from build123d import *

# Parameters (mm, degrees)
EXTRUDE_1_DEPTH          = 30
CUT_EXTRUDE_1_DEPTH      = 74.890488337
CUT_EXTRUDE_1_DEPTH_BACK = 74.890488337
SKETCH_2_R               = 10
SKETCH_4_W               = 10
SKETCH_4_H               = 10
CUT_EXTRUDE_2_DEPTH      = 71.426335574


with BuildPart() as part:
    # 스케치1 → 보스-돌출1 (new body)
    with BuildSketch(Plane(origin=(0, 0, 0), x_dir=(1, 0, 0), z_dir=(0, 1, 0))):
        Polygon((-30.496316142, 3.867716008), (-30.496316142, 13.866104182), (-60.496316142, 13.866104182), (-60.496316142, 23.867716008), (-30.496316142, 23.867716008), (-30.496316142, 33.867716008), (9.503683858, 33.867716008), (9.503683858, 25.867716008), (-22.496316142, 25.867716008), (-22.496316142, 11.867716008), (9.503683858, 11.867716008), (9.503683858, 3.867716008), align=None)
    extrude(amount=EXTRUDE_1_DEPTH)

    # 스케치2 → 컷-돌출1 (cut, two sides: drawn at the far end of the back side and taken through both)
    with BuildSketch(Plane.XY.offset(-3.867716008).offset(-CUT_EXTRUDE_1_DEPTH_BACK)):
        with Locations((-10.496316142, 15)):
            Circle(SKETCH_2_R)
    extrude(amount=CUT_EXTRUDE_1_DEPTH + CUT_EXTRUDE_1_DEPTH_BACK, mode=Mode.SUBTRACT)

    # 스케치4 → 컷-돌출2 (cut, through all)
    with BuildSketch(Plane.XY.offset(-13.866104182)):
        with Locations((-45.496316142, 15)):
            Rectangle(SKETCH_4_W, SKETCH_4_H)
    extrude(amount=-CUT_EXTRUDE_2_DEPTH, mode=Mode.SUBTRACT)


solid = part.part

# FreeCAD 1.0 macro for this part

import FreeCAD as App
import Part
import Sketcher
Q = App.Units.Quantity

doc = App.newDocument("Part")
body = doc.addObject("PartDesign::Body", "Body")

sketch1 = body.newObject("Sketcher::SketchObject", "Sketch")
sketch1.AttachmentSupport = (doc.getObject("XZ_Plane"), [""])
sketch1.MapMode = "FlatFace"
sketch1.addGeometry([
    Part.LineSegment(App.Vector(-30, -14, 0), App.Vector(-30, -4, 0)),
    Part.LineSegment(App.Vector(-30, -4, 0), App.Vector(10, -4, 0)),
    Part.LineSegment(App.Vector(10, -4, 0), App.Vector(10, -12, 0)),
    Part.LineSegment(App.Vector(10, -12, 0), App.Vector(-22, -12, 0)),
    Part.LineSegment(App.Vector(-22, -12, 0), App.Vector(-22, -26, 0)),
    Part.LineSegment(App.Vector(-22, -26, 0), App.Vector(10, -26, 0)),
    Part.LineSegment(App.Vector(10, -26, 0), App.Vector(10, -34, 0)),
    Part.LineSegment(App.Vector(10, -34, 0), App.Vector(-30, -34, 0)),
    Part.LineSegment(App.Vector(-30, -34, 0), App.Vector(-30, -24, 0)),
    Part.LineSegment(App.Vector(-30, -24, 0), App.Vector(-60, -24, 0)),
    Part.LineSegment(App.Vector(-60, -24, 0), App.Vector(-60, -14, 0)),
    Part.LineSegment(App.Vector(-60, -14, 0), App.Vector(-30, -14, 0)),
], False)
sketch1.addConstraint([
    Sketcher.Constraint("Coincident", 0, 2, 1, 1),
    Sketcher.Constraint("Coincident", 1, 2, 2, 1),
    Sketcher.Constraint("Coincident", 2, 2, 3, 1),
    Sketcher.Constraint("Coincident", 3, 2, 4, 1),
    Sketcher.Constraint("Coincident", 4, 2, 5, 1),
    Sketcher.Constraint("Coincident", 5, 2, 6, 1),
    Sketcher.Constraint("Coincident", 6, 2, 7, 1),
    Sketcher.Constraint("Coincident", 7, 2, 8, 1),
    Sketcher.Constraint("Coincident", 8, 2, 9, 1),
    Sketcher.Constraint("Coincident", 9, 2, 10, 1),
    Sketcher.Constraint("Coincident", 10, 2, 11, 1),
    Sketcher.Constraint("Coincident", 11, 2, 0, 1),
    Sketcher.Constraint("Vertical", 0),
    Sketcher.Constraint("Horizontal", 1),
    Sketcher.Constraint("Vertical", 2),
    Sketcher.Constraint("Horizontal", 3),
    Sketcher.Constraint("Vertical", 4),
    Sketcher.Constraint("Horizontal", 5),
    Sketcher.Constraint("Vertical", 6),
    Sketcher.Constraint("Horizontal", 7),
    Sketcher.Constraint("Vertical", 8),
    Sketcher.Constraint("Horizontal", 9),
    Sketcher.Constraint("Vertical", 10),
    Sketcher.Constraint("Horizontal", 11),
    Sketcher.Constraint("Vertical", 2, 2, 5, 2),
    Sketcher.Constraint("Vertical", 0, 2, 7, 2),
    Sketcher.Constraint("Equal", 2, 6),
    Sketcher.Constraint("DistanceX", 1, 1, 1, 2, Q("40 mm")),
    Sketcher.Constraint("DistanceX", 3, 2, 3, 1, Q("32 mm")),
    Sketcher.Constraint("DistanceX", 9, 2, 9, 1, Q("30 mm")),
    Sketcher.Constraint("DistanceY", 2, 2, 2, 1, Q("8 mm")),
    Sketcher.Constraint("DistanceY", 4, 2, 4, 1, Q("14 mm")),
    Sketcher.Constraint("DistanceY", 8, 1, 8, 2, Q("10 mm")),
    Sketcher.Constraint("DistanceY", 0, 1, 0, 2, Q("9.998388 mm")),
    Sketcher.Constraint("DistanceX", 0, 2, -1, 1, Q("30.496316 mm")),
    Sketcher.Constraint("DistanceY", 0, 2, -1, 1, Q("3.867716 mm")),
])
pad1 = body.newObject("PartDesign::Pad", "Pad")
pad1.Profile = sketch1
pad1.Length = 30
pad1.Reversed = True

sketch2 = body.newObject("Sketcher::SketchObject", "Sketch001")
sketch2.AttachmentSupport = (doc.getObject("XY_Plane"), [""])
sketch2.MapMode = "FlatFace"
sketch2.AttachmentOffset = App.Placement(App.Vector(0, 0, -3.867716), App.Rotation())
sketch2.addGeometry(Part.Circle(App.Vector(-10, 15, 0), App.Vector(0, 0, 1), 10), False)
sketch2.addConstraint([
    Sketcher.Constraint("Diameter", 0, Q("20 mm")),
    Sketcher.Constraint("DistanceY", -1, 1, 0, 3, Q("15 mm")),
    Sketcher.Constraint("DistanceX", 0, 3, -1, 1, Q("10.496316 mm")),
])
pocket1 = body.newObject("PartDesign::Pocket", "Pocket")
pocket1.Profile = sketch2
pocket1.Type = "ThroughAll"
pocket1.Midplane = True

sketch3 = body.newObject("Sketcher::SketchObject", "Sketch002")
sketch3.AttachmentSupport = (doc.getObject("XY_Plane"), [""])
sketch3.MapMode = "FlatFace"
sketch3.AttachmentOffset = App.Placement(App.Vector(0, 0, -13.866104), App.Rotation())
sketch3.addGeometry([
    Part.LineSegment(App.Vector(-50, 20, 0), App.Vector(-50, 10, 0)),
    Part.LineSegment(App.Vector(-50, 10, 0), App.Vector(-40, 10, 0)),
    Part.LineSegment(App.Vector(-40, 10, 0), App.Vector(-40, 20, 0)),
    Part.LineSegment(App.Vector(-40, 20, 0), App.Vector(-50, 20, 0)),
], False)
sketch3.addConstraint([
    Sketcher.Constraint("Coincident", 0, 2, 1, 1),
    Sketcher.Constraint("Coincident", 1, 2, 2, 1),
    Sketcher.Constraint("Coincident", 2, 2, 3, 1),
    Sketcher.Constraint("Coincident", 3, 2, 0, 1),
    Sketcher.Constraint("Vertical", 0),
    Sketcher.Constraint("Horizontal", 1),
    Sketcher.Constraint("Vertical", 2),
    Sketcher.Constraint("Horizontal", 3),
    Sketcher.Constraint("Equal", 3, 0),
    Sketcher.Constraint("DistanceX", 1, 1, 1, 2, Q("10 mm")),
    Sketcher.Constraint("DistanceY", -1, 1, 0, 2, Q("10 mm")),
    Sketcher.Constraint("DistanceX", 0, 2, -1, 1, Q("50.496316 mm")),
])
pocket2 = body.newObject("PartDesign::Pocket", "Pocket001")
pocket2.Profile = sketch3
pocket2.Type = "ThroughAll"

doc.recompute()
